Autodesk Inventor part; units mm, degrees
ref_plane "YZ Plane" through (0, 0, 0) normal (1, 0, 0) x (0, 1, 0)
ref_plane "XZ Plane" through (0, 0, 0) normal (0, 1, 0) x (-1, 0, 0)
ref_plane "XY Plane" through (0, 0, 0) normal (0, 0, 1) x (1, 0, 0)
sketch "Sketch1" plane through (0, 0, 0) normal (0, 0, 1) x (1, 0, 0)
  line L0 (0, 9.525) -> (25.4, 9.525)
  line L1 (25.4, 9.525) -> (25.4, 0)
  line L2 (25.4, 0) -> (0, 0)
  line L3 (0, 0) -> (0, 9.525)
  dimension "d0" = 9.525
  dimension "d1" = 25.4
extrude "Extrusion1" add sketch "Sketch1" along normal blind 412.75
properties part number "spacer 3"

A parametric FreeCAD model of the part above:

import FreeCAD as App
import Part
import Sketcher
Q = App.Units.Quantity

doc = App.newDocument("Part")
body = doc.addObject("PartDesign::Body", "Body")

# Sketch on XY plane
sketch1 = body.newObject("Sketcher::SketchObject", "Sketch")
sketch1.AttachmentSupport = (doc.getObject("XY_Plane"), [""])
sketch1.MapMode = "FlatFace"
sketch1.addGeometry([
    Part.LineSegment(App.Vector(25, 10, 0), App.Vector(0, 10, 0)),
    Part.LineSegment(App.Vector(0, 10, 0), App.Vector(0, 0, 0)),
    Part.LineSegment(App.Vector(0, 0, 0), App.Vector(25, 0, 0)),
    Part.LineSegment(App.Vector(25, 0, 0), App.Vector(25, 10, 0)),
], False)
sketch1.addConstraint([
    Sketcher.Constraint("Coincident", 0, 2, 1, 1),
    Sketcher.Constraint("Coincident", 1, 2, 2, 1),
    Sketcher.Constraint("Coincident", 2, 2, 3, 1),
    Sketcher.Constraint("Coincident", 3, 2, 0, 1),
    Sketcher.Constraint("Horizontal", 0),
    Sketcher.Constraint("Vertical", 1),
    Sketcher.Constraint("Horizontal", 2),
    Sketcher.Constraint("Vertical", 3),
    Sketcher.Constraint("Coincident", 1, 2, -1, 1),
    Sketcher.Constraint("DistanceX", 0, 2, 0, 1, Q("1 in")),
    Sketcher.Constraint("DistanceY", 1, 2, 1, 1, Q("0.375 in")),
])
pad1 = body.newObject("PartDesign::Pad", "Pad")
pad1.Profile = sketch1
pad1.Length = Q("16.25 in")

doc.recompute()
